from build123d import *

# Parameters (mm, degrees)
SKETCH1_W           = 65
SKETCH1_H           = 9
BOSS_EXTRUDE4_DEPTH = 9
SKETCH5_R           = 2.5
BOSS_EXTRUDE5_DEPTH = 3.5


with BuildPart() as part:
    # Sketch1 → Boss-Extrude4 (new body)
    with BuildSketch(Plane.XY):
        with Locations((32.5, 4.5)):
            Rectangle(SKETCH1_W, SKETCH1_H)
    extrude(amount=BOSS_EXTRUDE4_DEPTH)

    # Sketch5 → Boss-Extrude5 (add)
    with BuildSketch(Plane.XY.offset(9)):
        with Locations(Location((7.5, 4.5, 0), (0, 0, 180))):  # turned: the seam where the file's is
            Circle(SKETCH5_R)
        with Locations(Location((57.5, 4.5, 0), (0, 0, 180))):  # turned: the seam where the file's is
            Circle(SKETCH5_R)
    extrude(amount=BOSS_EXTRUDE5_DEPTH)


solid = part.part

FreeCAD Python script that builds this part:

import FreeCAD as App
import Part
import Sketcher

V = App.Vector
Q = App.Units.Quantity

doc = App.newDocument("Part")
params = doc.addObject("Spreadsheet::Sheet", "Params")
for row, (alias, value) in enumerate([
    ("sketch1_width", "65 mm"),
    ("sketch1_height", "9 mm"),
    ("pad1_length", "9 mm"),
    ("sketch2_diameter", "5 mm"),
    ("pad2_length", "3.5 mm"),
], start=1):
    params.set(f"A{row}", alias)
    params.set(f"B{row}", "=" + value)
    params.setAlias(f"B{row}", alias)

body = doc.addObject("PartDesign::Body", "Body")

# Sketch on XY plane
sketch1 = doc.addObject("Sketcher::SketchObject", "Sketch")
body.addObject(sketch1)
sketch1.AttachmentSupport = (doc.XY_Plane, [""])
sketch1.MapMode = "FlatFace"
sketch1.addGeometry([
    Part.LineSegment(V(0, 9, 0), V(0, 0, 0)),
    Part.LineSegment(V(0, 0, 0), V(65, 0, 0)),
    Part.LineSegment(V(65, 0, 0), V(65, 9, 0)),
    Part.LineSegment(V(65, 9, 0), V(0, 9, 0)),
], False)
sketch1.addConstraint([
    Sketcher.Constraint("Coincident", 0, 2, 1, 1),
    Sketcher.Constraint("Coincident", 1, 2, 2, 1),
    Sketcher.Constraint("Coincident", 2, 2, 3, 1),
    Sketcher.Constraint("Coincident", 3, 2, 0, 1),
    Sketcher.Constraint("Vertical", 0),
    Sketcher.Constraint("Horizontal", 1),
    Sketcher.Constraint("Vertical", 2),
    Sketcher.Constraint("Horizontal", 3),
    Sketcher.Constraint("Coincident", 0, 2, -1, 1),
    Sketcher.Constraint("DistanceX", 1, 1, 1, 2, Q("65 mm")),
    Sketcher.Constraint("DistanceY", 0, 2, 0, 1, Q("9 mm")),
])
sketch1.setExpression("Constraints[9]", "Params.sketch1_width")
sketch1.setExpression("Constraints[10]", "Params.sketch1_height")
pad1 = doc.addObject("PartDesign::Pad", "Pad")
body.addObject(pad1)
pad1.Profile = sketch1
pad1.setExpression("Length", "Params.pad1_length")

# Sketch on XY plane
sketch2 = doc.addObject("Sketcher::SketchObject", "Sketch001")
body.addObject(sketch2)
sketch2.AttachmentSupport = (doc.XY_Plane, [""])
sketch2.MapMode = "FlatFace"
sketch2.AttachmentOffset = App.Placement(V(0, 0, 9), App.Rotation())
sketch2.addGeometry([
    Part.Circle(V(7.5, 4.5, 0), V(0, 0, 1), 2.5),
    Part.Circle(V(57.5, 4.5, 0), V(0, 0, 1), 2.5),
], False)
sketch2.addConstraint([
    Sketcher.Constraint("Equal", 0, 1),
    Sketcher.Constraint("Horizontal", 0, 3, 1, 3),
    Sketcher.Constraint("Diameter", 0, Q("5 mm")),
    Sketcher.Constraint("DistanceX", 0, 3, 1, 3, Q("50 mm")),
    Sketcher.Constraint("DistanceX", -1, 1, 0, 3, Q("7.5 mm")),
    Sketcher.Constraint("DistanceY", -1, 1, 0, 3, Q("4.5 mm")),
])
sketch2.setExpression("Constraints[2]", "Params.sketch2_diameter")
pad2 = doc.addObject("PartDesign::Pad", "Pad001")
body.addObject(pad2)
pad2.Profile = sketch2
pad2.setExpression("Length", "Params.pad2_length")

doc.recompute()
